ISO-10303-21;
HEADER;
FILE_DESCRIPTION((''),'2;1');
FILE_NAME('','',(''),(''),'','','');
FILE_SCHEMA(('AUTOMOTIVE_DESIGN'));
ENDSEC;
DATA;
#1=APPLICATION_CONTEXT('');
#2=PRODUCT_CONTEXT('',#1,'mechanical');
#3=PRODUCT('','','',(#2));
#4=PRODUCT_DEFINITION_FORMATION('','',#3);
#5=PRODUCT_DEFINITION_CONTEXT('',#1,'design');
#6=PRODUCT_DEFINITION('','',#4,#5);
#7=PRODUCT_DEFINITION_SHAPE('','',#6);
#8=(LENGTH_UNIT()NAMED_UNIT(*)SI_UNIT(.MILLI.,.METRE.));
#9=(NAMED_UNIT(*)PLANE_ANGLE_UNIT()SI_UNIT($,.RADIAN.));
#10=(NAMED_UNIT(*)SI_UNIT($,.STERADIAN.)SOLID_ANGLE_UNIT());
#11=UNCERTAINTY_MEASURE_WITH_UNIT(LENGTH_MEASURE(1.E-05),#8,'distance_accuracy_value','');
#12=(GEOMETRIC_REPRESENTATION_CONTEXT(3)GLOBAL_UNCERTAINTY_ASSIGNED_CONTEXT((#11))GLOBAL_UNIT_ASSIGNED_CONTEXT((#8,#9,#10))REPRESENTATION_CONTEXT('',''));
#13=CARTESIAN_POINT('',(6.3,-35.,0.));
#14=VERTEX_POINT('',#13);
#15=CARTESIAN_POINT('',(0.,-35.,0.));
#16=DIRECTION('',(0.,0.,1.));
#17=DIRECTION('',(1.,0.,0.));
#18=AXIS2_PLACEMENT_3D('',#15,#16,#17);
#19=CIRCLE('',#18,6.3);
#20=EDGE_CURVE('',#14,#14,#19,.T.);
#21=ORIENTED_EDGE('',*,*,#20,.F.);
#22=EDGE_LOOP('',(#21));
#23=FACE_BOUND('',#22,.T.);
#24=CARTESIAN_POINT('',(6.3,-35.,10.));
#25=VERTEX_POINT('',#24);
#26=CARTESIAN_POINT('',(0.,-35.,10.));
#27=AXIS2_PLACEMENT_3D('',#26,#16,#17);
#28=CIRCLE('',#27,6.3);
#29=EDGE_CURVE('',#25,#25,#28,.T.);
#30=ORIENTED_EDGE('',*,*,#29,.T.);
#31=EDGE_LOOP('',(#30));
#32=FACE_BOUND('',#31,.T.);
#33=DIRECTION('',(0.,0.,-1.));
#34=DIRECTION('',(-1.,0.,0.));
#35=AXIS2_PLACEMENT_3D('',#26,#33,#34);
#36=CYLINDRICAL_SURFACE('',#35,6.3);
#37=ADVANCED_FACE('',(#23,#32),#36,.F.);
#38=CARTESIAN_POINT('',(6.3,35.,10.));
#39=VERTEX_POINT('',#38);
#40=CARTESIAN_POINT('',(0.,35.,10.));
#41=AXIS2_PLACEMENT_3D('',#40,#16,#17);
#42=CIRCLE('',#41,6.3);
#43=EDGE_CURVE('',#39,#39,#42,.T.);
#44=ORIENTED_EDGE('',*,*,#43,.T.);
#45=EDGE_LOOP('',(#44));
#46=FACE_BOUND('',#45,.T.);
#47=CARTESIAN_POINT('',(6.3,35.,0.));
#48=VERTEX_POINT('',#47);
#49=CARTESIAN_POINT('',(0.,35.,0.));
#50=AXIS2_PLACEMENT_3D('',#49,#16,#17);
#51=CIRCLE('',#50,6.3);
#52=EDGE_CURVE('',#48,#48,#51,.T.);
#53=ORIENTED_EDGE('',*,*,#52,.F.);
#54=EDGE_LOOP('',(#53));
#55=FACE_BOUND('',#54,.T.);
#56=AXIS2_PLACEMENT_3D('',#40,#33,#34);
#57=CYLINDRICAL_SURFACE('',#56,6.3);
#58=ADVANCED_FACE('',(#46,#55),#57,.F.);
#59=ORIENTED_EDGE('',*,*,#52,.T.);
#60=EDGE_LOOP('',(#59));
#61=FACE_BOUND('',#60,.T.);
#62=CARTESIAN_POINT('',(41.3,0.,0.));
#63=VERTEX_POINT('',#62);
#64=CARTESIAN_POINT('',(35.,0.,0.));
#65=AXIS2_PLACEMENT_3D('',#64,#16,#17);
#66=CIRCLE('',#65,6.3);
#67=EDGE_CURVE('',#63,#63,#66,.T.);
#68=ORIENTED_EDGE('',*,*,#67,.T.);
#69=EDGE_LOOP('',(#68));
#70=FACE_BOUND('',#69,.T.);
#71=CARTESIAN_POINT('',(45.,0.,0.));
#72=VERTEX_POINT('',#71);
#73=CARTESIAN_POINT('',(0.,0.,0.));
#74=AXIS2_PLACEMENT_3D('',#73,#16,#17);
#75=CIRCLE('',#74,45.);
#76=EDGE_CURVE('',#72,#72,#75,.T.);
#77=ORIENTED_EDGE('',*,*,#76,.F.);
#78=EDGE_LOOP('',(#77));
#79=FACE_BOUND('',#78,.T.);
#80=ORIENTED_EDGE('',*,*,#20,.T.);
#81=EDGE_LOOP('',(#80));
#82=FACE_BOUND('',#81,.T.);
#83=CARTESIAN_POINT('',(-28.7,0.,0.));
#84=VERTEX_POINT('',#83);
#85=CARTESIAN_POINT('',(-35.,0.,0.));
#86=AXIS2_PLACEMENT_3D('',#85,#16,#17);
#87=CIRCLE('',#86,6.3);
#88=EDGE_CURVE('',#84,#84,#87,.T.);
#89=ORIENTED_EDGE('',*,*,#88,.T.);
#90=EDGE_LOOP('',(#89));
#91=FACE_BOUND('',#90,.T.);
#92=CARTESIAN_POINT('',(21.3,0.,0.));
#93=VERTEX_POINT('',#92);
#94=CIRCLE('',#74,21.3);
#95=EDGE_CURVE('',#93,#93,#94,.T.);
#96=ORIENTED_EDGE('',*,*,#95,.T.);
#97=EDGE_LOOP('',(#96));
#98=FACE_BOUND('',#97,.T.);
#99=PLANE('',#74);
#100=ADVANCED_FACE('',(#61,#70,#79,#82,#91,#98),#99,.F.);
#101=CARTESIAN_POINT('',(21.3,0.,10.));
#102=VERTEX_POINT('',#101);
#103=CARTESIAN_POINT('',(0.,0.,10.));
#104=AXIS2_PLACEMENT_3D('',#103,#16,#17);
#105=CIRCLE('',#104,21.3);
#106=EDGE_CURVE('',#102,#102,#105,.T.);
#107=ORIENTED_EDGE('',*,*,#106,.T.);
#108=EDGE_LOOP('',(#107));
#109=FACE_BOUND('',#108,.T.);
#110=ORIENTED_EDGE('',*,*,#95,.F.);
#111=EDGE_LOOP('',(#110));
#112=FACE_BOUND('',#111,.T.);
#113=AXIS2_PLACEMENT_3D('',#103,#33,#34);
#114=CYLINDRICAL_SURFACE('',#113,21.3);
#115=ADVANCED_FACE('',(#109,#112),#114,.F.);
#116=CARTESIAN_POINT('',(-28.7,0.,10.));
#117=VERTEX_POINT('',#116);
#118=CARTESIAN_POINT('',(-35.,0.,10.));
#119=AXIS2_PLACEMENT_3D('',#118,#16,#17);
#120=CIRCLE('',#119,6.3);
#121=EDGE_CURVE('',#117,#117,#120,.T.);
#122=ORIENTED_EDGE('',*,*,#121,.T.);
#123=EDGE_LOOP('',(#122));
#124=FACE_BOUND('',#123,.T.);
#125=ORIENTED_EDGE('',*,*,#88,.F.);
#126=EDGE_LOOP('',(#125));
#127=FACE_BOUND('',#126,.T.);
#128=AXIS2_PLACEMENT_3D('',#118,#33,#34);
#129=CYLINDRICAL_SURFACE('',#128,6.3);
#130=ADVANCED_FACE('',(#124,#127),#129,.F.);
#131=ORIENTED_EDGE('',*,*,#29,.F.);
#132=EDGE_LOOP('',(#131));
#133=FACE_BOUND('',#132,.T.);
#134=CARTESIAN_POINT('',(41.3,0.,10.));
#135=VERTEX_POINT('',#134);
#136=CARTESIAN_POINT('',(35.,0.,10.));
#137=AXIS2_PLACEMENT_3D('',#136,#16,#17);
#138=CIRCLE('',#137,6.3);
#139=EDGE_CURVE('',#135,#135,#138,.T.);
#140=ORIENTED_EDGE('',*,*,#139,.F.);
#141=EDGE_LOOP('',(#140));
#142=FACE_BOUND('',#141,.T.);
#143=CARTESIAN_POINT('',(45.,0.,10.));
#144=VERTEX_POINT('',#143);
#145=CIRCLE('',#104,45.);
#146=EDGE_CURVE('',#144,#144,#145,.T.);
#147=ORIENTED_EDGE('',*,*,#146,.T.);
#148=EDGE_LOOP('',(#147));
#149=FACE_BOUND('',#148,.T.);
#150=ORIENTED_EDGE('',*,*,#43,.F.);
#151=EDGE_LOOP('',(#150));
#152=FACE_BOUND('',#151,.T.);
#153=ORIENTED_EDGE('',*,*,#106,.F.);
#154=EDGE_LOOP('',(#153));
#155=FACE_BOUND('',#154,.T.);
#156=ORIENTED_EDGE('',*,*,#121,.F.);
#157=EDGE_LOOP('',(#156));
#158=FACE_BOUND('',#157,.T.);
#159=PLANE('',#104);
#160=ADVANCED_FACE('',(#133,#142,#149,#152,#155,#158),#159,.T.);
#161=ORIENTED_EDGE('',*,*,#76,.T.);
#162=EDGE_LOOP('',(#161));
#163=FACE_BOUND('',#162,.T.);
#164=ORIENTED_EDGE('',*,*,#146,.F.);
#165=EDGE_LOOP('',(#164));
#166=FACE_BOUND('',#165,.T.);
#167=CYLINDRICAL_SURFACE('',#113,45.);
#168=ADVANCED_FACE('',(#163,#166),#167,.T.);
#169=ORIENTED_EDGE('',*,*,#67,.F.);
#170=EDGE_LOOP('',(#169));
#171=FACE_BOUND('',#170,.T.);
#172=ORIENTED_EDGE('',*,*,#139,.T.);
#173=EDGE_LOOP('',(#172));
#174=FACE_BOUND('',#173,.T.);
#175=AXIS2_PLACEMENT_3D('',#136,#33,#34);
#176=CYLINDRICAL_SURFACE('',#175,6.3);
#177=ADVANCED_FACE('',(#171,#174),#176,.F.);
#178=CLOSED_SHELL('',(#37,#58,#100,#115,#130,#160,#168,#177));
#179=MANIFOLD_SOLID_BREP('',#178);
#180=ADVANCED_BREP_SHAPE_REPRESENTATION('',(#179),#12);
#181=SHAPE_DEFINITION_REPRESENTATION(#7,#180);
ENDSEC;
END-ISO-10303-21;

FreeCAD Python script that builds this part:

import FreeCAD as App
import Part
import Sketcher
from FreeCAD import Vector

doc = App.newDocument("Part")
body = doc.addObject("PartDesign::Body", "Body")

sketch1 = body.newObject("Sketcher::SketchObject", "Sketch")
sketch1.AttachmentSupport = (doc.getObject("XY_Plane"), [""])
sketch1.MapMode = "FlatFace"
sketch1.addGeometry(Part.Circle(Vector(0, 0, 0), Vector(0, 0, 1), 45), False)
sketch1.addGeometry(Part.Circle(Vector(0, -35, 0), Vector(0, 0, 1), 6), False)
sketch1.addGeometry(Part.Circle(Vector(-35, 0, 0), Vector(0, 0, 1), 6), False)
sketch1.addGeometry(Part.Circle(Vector(0, 0, 0), Vector(0, 0, 1), 21), False)
sketch1.addGeometry(Part.Circle(Vector(35, 0, 0), Vector(0, 0, 1), 6), False)
sketch1.addGeometry(Part.Circle(Vector(0, 35, 0), Vector(0, 0, 1), 6), False)
sketch1.addConstraint(Sketcher.Constraint("Coincident", 0, 3, -1, 1))
sketch1.addConstraint(Sketcher.Constraint("Coincident", 3, 3, -1, 1))
sketch1.addConstraint(Sketcher.Constraint("Equal", 1, 2))
sketch1.addConstraint(Sketcher.Constraint("Equal", 2, 4))
sketch1.addConstraint(Sketcher.Constraint("Equal", 4, 5))
sketch1.addConstraint(Sketcher.Constraint("Symmetric", 2, 3, 4, 3, -1, 1))
sketch1.addConstraint(Sketcher.Constraint("Symmetric", 1, 3, 5, 3, -1, 1))
sketch1.addConstraint(Sketcher.Constraint("PointOnObject", 1, 3, -2))
sketch1.addConstraint(Sketcher.Constraint("PointOnObject", 2, 3, -1))
sketch1.addConstraint(Sketcher.Constraint("Diameter", 0, 90.0))
sketch1.addConstraint(Sketcher.Constraint("Diameter", 1, 12.6))
sketch1.addConstraint(Sketcher.Constraint("Diameter", 3, 42.6))
sketch1.addConstraint(Sketcher.Constraint("DistanceY", 1, 3, -1, 1, 35.0))
sketch1.addConstraint(Sketcher.Constraint("DistanceX", 2, 3, -1, 1, 35.0))
pad1 = body.newObject("PartDesign::Pad", "Pad")
pad1.Profile = sketch1
pad1.Length = 10

doc.recompute()
